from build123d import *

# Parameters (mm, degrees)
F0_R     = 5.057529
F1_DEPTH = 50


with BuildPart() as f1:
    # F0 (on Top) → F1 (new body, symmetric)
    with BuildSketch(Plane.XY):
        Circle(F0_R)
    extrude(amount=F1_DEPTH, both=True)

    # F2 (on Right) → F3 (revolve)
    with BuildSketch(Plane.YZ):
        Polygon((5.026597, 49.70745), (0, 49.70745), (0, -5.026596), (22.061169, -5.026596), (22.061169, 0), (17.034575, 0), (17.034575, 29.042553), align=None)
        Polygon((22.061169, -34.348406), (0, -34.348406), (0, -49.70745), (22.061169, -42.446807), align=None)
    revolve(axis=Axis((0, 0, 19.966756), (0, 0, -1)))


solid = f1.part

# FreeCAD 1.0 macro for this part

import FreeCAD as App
import Part
import Sketcher
from FreeCAD import Vector

doc = App.newDocument("Part")
body = doc.addObject("PartDesign::Body", "Body")

# Sketch on XY plane
sketch1 = doc.addObject("Sketcher::SketchObject", "Sketch")
body.addObject(sketch1)
sketch1.AttachmentSupport = (doc.XY_Plane, [""])
sketch1.MapMode = "FlatFace"
sketch1.addGeometry(Part.Circle(Vector(0, 0, 0), Vector(0, 0, 1), 5), False)
sketch1.addConstraint(Sketcher.Constraint("Coincident", 0, 3, -1, 1))
sketch1.addConstraint(Sketcher.Constraint("Diameter", 0, 10.115058))
pad1 = doc.addObject("PartDesign::Pad", "Pad")
body.addObject(pad1)
pad1.Profile = sketch1
pad1.Length = 100
pad1.Midplane = True

# Sketch on YZ plane
sketch2 = doc.addObject("Sketcher::SketchObject", "Sketch001")
body.addObject(sketch2)
sketch2.AttachmentSupport = (doc.YZ_Plane, [""])
sketch2.MapMode = "FlatFace"
sketch2.addGeometry(Part.LineSegment(Vector(5, 50, 0), Vector(0, 50, 0)), False)
sketch2.addGeometry(Part.LineSegment(Vector(0, 50, 0), Vector(0, -5, 0)), False)
sketch2.addGeometry(Part.LineSegment(Vector(0, -5, 0), Vector(22, -5, 0)), False)
sketch2.addGeometry(Part.LineSegment(Vector(22, -5, 0), Vector(22, 0, 0)), False)
sketch2.addGeometry(Part.LineSegment(Vector(22, 0, 0), Vector(17, 0, 0)), False)
sketch2.addGeometry(Part.LineSegment(Vector(17, 0, 0), Vector(17, 29, 0)), False)
sketch2.addGeometry(Part.LineSegment(Vector(17, 29, 0), Vector(5, 50, 0)), False)
sketch2.addGeometry(Part.LineSegment(Vector(22, -34, 0), Vector(0, -34, 0)), False)
sketch2.addGeometry(Part.LineSegment(Vector(0, -34, 0), Vector(0, -50, 0)), False)
sketch2.addGeometry(Part.LineSegment(Vector(0, -50, 0), Vector(22, -42, 0)), False)
sketch2.addGeometry(Part.LineSegment(Vector(22, -42, 0), Vector(22, -34, 0)), False)
sketch2.addConstraint(Sketcher.Constraint("Coincident", 0, 2, 1, 1))
sketch2.addConstraint(Sketcher.Constraint("Coincident", 1, 2, 2, 1))
sketch2.addConstraint(Sketcher.Constraint("Coincident", 2, 2, 3, 1))
sketch2.addConstraint(Sketcher.Constraint("Coincident", 3, 2, 4, 1))
sketch2.addConstraint(Sketcher.Constraint("Coincident", 4, 2, 5, 1))
sketch2.addConstraint(Sketcher.Constraint("Coincident", 5, 2, 6, 1))
sketch2.addConstraint(Sketcher.Constraint("Coincident", 6, 2, 0, 1))
sketch2.addConstraint(Sketcher.Constraint("Coincident", 7, 2, 8, 1))
sketch2.addConstraint(Sketcher.Constraint("Coincident", 8, 2, 9, 1))
sketch2.addConstraint(Sketcher.Constraint("Coincident", 9, 2, 10, 1))
sketch2.addConstraint(Sketcher.Constraint("Coincident", 10, 2, 7, 1))
sketch2.addConstraint(Sketcher.Constraint("Horizontal", 0))
sketch2.addConstraint(Sketcher.Constraint("Vertical", 1))
sketch2.addConstraint(Sketcher.Constraint("Horizontal", 2))
sketch2.addConstraint(Sketcher.Constraint("Vertical", 3))
sketch2.addConstraint(Sketcher.Constraint("Horizontal", 4))
sketch2.addConstraint(Sketcher.Constraint("Vertical", 5))
sketch2.addConstraint(Sketcher.Constraint("Horizontal", 7))
sketch2.addConstraint(Sketcher.Constraint("Vertical", 8))
sketch2.addConstraint(Sketcher.Constraint("Vertical", 10))
sketch2.addConstraint(Sketcher.Constraint("Symmetric", 0, 2, 8, 2, -1, 1))
sketch2.addConstraint(Sketcher.Constraint("PointOnObject", 0, 2, -2))
sketch2.addConstraint(Sketcher.Constraint("PointOnObject", 3, 2, -1))
sketch2.addConstraint(Sketcher.Constraint("Vertical", 3, 2, 9, 2))
sketch2.addConstraint(Sketcher.Constraint("Equal", 0, 3))
sketch2.addConstraint(Sketcher.Constraint("DistanceY", 10, 1, 10, 2, 8.098401))
sketch2.addConstraint(Sketcher.Constraint("DistanceX", 2, 1, 2, 2, 22.061169))
sketch2.addConstraint(Sketcher.Constraint("Distance", 6, 23.900408))
sketch2.addConstraint(Sketcher.Constraint("DistanceX", 0, 2, 0, 1, 5.026597))
sketch2.addConstraint(Sketcher.Constraint("DistanceX", 4, 2, 4, 1, 5.026594))
sketch2.addConstraint(Sketcher.Constraint("DistanceY", 1, 2, 1, 1, 54.734046))
sketch2.addConstraint(Sketcher.Constraint("DistanceY", 8, 2, 8, 1, 15.359044))
revolution = doc.addObject("PartDesign::Revolution", "Revolution")
body.addObject(revolution)
revolution.Profile = sketch2
revolution.ReferenceAxis = (sketch2, ["V_Axis"])
revolution.Angle = 360

doc.recompute()
